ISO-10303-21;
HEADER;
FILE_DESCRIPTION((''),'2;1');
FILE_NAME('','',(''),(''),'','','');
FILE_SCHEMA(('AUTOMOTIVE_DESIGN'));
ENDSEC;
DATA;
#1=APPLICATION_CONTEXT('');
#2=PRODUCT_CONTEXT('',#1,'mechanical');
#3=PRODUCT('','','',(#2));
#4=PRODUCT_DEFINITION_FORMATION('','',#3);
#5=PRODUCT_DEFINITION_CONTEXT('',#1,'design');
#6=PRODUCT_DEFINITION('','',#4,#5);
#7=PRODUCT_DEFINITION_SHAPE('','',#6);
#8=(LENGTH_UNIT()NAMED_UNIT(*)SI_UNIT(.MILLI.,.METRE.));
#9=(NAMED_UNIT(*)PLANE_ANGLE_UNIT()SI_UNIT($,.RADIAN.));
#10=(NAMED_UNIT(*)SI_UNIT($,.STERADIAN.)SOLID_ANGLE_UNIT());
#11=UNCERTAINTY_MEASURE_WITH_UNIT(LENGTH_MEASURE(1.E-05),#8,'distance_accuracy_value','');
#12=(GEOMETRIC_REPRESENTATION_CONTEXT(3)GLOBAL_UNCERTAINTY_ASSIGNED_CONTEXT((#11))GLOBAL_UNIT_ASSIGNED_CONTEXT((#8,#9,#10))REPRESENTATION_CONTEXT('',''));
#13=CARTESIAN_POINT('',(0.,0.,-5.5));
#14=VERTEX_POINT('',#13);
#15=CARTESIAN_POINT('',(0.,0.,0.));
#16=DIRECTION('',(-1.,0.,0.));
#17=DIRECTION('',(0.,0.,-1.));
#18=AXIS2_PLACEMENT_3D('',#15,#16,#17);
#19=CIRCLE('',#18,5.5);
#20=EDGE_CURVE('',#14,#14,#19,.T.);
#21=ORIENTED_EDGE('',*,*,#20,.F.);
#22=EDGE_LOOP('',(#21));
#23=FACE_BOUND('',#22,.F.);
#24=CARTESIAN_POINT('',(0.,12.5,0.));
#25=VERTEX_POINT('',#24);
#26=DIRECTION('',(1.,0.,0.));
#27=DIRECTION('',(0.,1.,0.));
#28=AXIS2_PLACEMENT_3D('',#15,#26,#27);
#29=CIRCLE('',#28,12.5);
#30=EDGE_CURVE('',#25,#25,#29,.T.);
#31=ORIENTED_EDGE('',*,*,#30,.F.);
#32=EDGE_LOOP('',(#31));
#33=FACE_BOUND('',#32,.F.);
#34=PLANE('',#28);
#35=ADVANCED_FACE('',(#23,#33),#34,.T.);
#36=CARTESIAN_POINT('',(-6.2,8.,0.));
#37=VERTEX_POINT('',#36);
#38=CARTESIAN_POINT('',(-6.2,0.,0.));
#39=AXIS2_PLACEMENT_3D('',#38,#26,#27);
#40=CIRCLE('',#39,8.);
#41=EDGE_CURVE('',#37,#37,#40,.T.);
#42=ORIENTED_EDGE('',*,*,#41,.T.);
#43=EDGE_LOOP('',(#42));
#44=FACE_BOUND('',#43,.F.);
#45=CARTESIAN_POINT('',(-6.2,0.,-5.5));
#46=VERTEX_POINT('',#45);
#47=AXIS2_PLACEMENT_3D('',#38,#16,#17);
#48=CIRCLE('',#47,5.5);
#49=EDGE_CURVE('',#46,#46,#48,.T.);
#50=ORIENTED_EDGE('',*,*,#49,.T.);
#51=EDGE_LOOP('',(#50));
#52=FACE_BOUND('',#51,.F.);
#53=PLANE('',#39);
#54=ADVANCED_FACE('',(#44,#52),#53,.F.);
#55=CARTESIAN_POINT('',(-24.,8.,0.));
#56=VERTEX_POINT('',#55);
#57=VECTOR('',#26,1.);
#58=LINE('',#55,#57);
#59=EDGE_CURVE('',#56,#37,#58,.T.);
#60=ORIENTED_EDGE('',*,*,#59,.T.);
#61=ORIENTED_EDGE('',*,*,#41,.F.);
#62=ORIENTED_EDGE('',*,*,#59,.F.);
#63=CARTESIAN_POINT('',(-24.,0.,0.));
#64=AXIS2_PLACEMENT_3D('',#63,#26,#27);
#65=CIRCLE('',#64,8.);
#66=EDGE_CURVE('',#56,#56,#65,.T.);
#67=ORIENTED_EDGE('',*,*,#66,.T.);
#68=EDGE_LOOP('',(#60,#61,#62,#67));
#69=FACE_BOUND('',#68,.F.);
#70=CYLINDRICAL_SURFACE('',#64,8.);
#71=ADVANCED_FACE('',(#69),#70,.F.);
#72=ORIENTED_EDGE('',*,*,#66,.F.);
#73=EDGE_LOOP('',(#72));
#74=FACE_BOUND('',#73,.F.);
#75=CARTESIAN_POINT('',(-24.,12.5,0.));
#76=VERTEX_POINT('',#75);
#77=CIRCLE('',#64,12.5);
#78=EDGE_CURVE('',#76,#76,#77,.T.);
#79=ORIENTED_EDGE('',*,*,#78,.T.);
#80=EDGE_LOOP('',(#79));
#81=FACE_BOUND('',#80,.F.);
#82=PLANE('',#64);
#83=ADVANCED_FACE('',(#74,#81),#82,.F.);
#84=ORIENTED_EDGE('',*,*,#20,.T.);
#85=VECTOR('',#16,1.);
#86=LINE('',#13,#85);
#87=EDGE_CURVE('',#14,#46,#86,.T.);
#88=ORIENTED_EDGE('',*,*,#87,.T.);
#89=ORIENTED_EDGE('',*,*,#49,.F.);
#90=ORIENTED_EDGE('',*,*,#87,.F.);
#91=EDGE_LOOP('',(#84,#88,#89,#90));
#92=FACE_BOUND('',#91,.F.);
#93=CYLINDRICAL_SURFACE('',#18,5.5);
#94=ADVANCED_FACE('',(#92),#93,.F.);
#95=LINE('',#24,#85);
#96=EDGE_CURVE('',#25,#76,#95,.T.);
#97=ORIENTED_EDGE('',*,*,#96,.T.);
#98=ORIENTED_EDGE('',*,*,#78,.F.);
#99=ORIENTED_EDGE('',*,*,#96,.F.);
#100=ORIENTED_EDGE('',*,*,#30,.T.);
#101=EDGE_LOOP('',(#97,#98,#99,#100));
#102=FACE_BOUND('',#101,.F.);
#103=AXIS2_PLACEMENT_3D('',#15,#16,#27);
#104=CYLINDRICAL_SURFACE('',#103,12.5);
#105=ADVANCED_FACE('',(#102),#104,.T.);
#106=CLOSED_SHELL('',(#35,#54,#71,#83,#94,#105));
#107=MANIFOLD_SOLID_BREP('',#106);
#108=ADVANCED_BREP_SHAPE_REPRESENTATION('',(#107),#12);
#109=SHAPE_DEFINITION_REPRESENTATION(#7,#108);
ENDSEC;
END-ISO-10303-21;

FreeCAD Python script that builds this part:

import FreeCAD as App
import Part
import Sketcher
from FreeCAD import Vector
Q = App.Units.Quantity


def add_polygon(sketch, points):
    """Adds a closed chain of lines whose ends are joined by coincident constraints."""
    first, n = sketch.GeometryCount, len(points)
    for a, b in zip(points, points[1:] + points[:1]):
        sketch.addGeometry(Part.LineSegment(App.Vector(*a, 0), App.Vector(*b, 0)), False)
    for i in range(n):
        sketch.addConstraint(Sketcher.Constraint("Coincident", first + i, 2, first + (i + 1) % n, 1))

doc = App.newDocument("Part")
body = doc.addObject("PartDesign::Body", "Body")

sketch1 = body.newObject("Sketcher::SketchObject", "Sketch")
sketch1.AttachmentSupport = (doc.getObject("XY_Plane"), [""])
sketch1.MapMode = "FlatFace"
add_polygon(sketch1, [(-6.2, 0), (0, 0), (0, 12.5), (-24, 12.5), (-24, 8), (-6.2, 8)])
sketch1.addConstraint([
    Sketcher.Constraint("Horizontal", 0),
    Sketcher.Constraint("Vertical", 1),
    Sketcher.Constraint("Horizontal", 2),
    Sketcher.Constraint("Vertical", 3),
    Sketcher.Constraint("Horizontal", 4),
    Sketcher.Constraint("Vertical", 5),
    Sketcher.Constraint("Coincident", 0, 2, -1, 1),
    Sketcher.Constraint("DistanceX", 2, 2, 2, 1, Q("24 mm")),
    Sketcher.Constraint("DistanceY", 5, 2, 5, 1, Q("8 mm")),
    Sketcher.Constraint("DistanceX", 0, 1, 0, 2, Q("6.2 mm")),
    Sketcher.Constraint("DistanceY", 1, 1, 1, 2, Q("12.5 mm")),
])
revolution = body.newObject("PartDesign::Revolution", "Revolution")
revolution.Profile = sketch1
revolution.ReferenceAxis = (sketch1, ["H_Axis"])
revolution.Angle = 360

sketch2 = body.newObject("Sketcher::SketchObject", "Sketch001")
sketch2.AttachmentSupport = (doc.getObject("YZ_Plane"), [""])
sketch2.MapMode = "FlatFace"
sketch2.addGeometry(Part.Circle(Vector(0, 0, 0), Vector(0, 0, 1), 5.5), False)
sketch2.addConstraint([
    Sketcher.Constraint("Coincident", 0, 3, -1, 1),
    Sketcher.Constraint("Diameter", 0, Q("11 mm")),
])
doc.recompute()
hole = body.newObject("PartDesign::Hole", "Hole")
hole.Profile = sketch2
hole.ThreadType = "None"
hole.Diameter = 11
hole.DepthType = "ThroughAll"

doc.recompute()
